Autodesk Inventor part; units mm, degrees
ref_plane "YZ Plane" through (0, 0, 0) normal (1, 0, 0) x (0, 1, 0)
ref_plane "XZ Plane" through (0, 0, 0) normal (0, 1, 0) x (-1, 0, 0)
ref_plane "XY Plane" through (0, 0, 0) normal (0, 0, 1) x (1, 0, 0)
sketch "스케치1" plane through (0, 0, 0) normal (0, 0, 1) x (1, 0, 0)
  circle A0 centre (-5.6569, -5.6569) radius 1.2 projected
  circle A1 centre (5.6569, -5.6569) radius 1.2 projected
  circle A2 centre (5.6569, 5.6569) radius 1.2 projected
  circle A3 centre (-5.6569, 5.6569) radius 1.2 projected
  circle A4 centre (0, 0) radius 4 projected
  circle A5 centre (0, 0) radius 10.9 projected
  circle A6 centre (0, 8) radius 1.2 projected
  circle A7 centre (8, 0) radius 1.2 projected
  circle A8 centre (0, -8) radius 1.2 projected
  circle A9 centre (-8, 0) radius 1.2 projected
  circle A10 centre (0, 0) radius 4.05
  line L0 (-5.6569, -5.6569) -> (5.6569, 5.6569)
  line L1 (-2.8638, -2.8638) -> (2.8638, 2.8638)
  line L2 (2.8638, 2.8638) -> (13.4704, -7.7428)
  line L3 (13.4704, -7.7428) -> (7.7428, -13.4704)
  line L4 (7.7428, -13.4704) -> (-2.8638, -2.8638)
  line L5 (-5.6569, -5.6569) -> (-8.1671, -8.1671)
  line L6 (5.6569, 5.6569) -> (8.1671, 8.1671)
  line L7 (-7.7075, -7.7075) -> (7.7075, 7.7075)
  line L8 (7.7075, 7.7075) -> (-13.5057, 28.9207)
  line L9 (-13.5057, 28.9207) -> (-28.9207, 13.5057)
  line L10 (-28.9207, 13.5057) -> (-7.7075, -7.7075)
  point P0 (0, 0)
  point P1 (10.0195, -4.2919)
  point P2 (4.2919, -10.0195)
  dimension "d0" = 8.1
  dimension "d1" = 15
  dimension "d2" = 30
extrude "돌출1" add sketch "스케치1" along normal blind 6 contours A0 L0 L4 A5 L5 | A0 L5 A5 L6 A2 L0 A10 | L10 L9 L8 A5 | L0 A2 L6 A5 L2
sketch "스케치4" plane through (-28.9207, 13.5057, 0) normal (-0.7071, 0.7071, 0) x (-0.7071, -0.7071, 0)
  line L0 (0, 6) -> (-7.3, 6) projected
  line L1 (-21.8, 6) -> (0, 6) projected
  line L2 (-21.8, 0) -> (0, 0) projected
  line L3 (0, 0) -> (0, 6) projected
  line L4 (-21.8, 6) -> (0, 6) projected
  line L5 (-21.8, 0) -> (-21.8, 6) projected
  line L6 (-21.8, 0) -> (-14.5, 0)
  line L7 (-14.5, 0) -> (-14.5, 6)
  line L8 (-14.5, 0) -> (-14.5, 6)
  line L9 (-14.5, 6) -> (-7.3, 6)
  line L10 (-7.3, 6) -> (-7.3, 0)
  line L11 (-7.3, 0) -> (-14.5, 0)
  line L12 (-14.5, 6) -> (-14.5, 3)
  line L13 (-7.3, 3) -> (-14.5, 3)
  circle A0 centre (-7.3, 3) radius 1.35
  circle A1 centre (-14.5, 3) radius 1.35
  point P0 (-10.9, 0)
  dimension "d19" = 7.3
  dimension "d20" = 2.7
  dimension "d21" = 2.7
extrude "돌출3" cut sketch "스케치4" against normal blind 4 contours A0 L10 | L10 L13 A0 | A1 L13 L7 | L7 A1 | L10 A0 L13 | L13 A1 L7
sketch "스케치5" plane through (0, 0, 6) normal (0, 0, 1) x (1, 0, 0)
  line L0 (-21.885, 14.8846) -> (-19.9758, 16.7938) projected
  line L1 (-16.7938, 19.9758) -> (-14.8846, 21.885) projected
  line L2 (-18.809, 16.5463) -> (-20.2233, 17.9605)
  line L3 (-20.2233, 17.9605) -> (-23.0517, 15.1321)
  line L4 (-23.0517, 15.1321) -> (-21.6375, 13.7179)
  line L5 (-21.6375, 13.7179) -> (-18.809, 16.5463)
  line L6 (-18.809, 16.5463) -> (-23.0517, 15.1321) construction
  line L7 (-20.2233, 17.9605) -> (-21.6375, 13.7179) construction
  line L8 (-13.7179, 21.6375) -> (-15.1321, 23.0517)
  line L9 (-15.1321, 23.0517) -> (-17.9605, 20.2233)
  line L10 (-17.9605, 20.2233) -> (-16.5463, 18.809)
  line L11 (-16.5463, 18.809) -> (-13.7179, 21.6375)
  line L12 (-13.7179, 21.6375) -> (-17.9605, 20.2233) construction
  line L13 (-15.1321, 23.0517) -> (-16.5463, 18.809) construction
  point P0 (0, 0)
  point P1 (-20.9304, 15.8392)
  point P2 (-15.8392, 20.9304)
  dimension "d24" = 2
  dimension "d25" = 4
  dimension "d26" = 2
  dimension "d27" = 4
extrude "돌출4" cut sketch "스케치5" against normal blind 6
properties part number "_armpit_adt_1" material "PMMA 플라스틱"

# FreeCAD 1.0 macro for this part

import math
import FreeCAD as App
import Part
import Sketcher
Q = App.Units.Quantity


def add_polygon(sketch, points):
    """Adds a closed chain of lines whose ends are joined by coincident constraints."""
    first, n = sketch.GeometryCount, len(points)
    for a, b in zip(points, points[1:] + points[:1]):
        sketch.addGeometry(Part.LineSegment(App.Vector(*a, 0), App.Vector(*b, 0)), False)
    for i in range(n):
        sketch.addConstraint(Sketcher.Constraint("Coincident", first + i, 2, first + (i + 1) % n, 1))

doc = App.newDocument("Part")
body = doc.addObject("PartDesign::Body", "Body")

# Sketch on XY plane
sketch1 = body.newObject("Sketcher::SketchObject", "Sketch")
sketch1.AttachmentSupport = (doc.getObject("XY_Plane"), [""])
sketch1.MapMode = "FlatFace"
sketch1.addGeometry(Part.LineSegment(App.Vector(4.3, -10, 0), App.Vector(-2.9, -2.9, 0)), False)
sketch1.addGeometry(Part.ArcOfCircle(Part.Circle(App.Vector(0, 0, 0), App.Vector(0, 0, 1), 4), math.radians(45), math.radians(225)), False)
sketch1.addGeometry(Part.LineSegment(App.Vector(2.9, 2.9, 0), App.Vector(10, -4.3, 0)), False)
sketch1.addGeometry(Part.ArcOfCircle(Part.Circle(App.Vector(0, 0, 0), App.Vector(0, 0, 1), 10.9), math.radians(-23), math.radians(45)), False)
sketch1.addGeometry(Part.LineSegment(App.Vector(7.7, 7.7, 0), App.Vector(-13.5, 28.9, 0)), False)
sketch1.addGeometry(Part.LineSegment(App.Vector(-13.5, 28.9, 0), App.Vector(-28.9, 13.5, 0)), False)
sketch1.addGeometry(Part.LineSegment(App.Vector(-28.9, 13.5, 0), App.Vector(-7.7, -7.7, 0)), False)
sketch1.addGeometry(Part.ArcOfCircle(Part.Circle(App.Vector(0, 0, 0), App.Vector(0, 0, 1), 10.9), math.radians(-135), math.radians(-67)), False)
sketch1.addGeometry(Part.Circle(App.Vector(-5.7, -5.7, 0), App.Vector(0, 0, 1), 1.2), False)
sketch1.addGeometry(Part.Circle(App.Vector(0, -8, 0), App.Vector(0, 0, 1), 1.2), False)
sketch1.addGeometry(Part.Circle(App.Vector(-5.7, 5.7, 0), App.Vector(0, 0, 1), 1.2), False)
sketch1.addGeometry(Part.Circle(App.Vector(5.7, 5.7, 0), App.Vector(0, 0, 1), 1.2), False)
sketch1.addGeometry(Part.Circle(App.Vector(0, 8, 0), App.Vector(0, 0, 1), 1.2), False)
sketch1.addGeometry(Part.Circle(App.Vector(-8, 0, 0), App.Vector(0, 0, 1), 1.2), False)
sketch1.addGeometry(Part.Circle(App.Vector(8, 0, 0), App.Vector(0, 0, 1), 1.2), False)
sketch1.addConstraint(Sketcher.Constraint("Tangent", 0, 2, 1, 2))
sketch1.addConstraint(Sketcher.Constraint("Tangent", 1, 1, 2, 1))
sketch1.addConstraint(Sketcher.Constraint("Coincident", 2, 2, 3, 1))
sketch1.addConstraint(Sketcher.Constraint("Tangent", 3, 2, 4, 1))
sketch1.addConstraint(Sketcher.Constraint("Coincident", 4, 2, 5, 1))
sketch1.addConstraint(Sketcher.Constraint("Coincident", 5, 2, 6, 1))
sketch1.addConstraint(Sketcher.Constraint("Tangent", 6, 2, 7, 1))
sketch1.addConstraint(Sketcher.Constraint("Coincident", 7, 2, 0, 1))
sketch1.addConstraint(Sketcher.Constraint("Coincident", 1, 3, -1, 1))
sketch1.addConstraint(Sketcher.Constraint("Coincident", 3, 3, -1, 1))
sketch1.addConstraint(Sketcher.Constraint("Coincident", 7, 3, -1, 1))
sketch1.addConstraint(Sketcher.Constraint("Equal", 3, 7))
sketch1.addConstraint(Sketcher.Constraint("Equal", 8, 9))
sketch1.addConstraint(Sketcher.Constraint("Equal", 9, 10))
sketch1.addConstraint(Sketcher.Constraint("Equal", 10, 11))
sketch1.addConstraint(Sketcher.Constraint("Equal", 11, 12))
sketch1.addConstraint(Sketcher.Constraint("Equal", 12, 13))
sketch1.addConstraint(Sketcher.Constraint("Equal", 13, 14))
sketch1.addConstraint(Sketcher.Constraint("Symmetric", 8, 3, 11, 3, -1, 1))
sketch1.addConstraint(Sketcher.Constraint("Symmetric", 9, 3, 12, 3, -1, 1))
sketch1.addConstraint(Sketcher.Constraint("Symmetric", 13, 3, 14, 3, -1, 1))
sketch1.addConstraint(Sketcher.Constraint("Symmetric", 10, 3, 11, 3, -2))
sketch1.addConstraint(Sketcher.Constraint("PointOnObject", 9, 3, -2))
sketch1.addConstraint(Sketcher.Constraint("PointOnObject", 13, 3, -1))
sketch1.addConstraint(Sketcher.Constraint("Parallel", 0, 2))
sketch1.addConstraint(Sketcher.Constraint("Parallel", 2, 4))
sketch1.addConstraint(Sketcher.Constraint("Perpendicular", 4, 5))
sketch1.addConstraint(Sketcher.Constraint("Perpendicular", 5, 6))
sketch1.addConstraint(Sketcher.Constraint("Radius", 1, 4.05))
sketch1.addConstraint(Sketcher.Constraint("Distance", 4, 30.0))
sketch1.addConstraint(Sketcher.Constraint("Diameter", 8, 2.4))
sketch1.addConstraint(Sketcher.Constraint("Radius", 3, 10.9))
sketch1.addConstraint(Sketcher.Constraint("Angle", 0, Q("135 deg")))
sketch1.addConstraint(Sketcher.Constraint("DistanceY", 9, 3, -1, 1, 8.0))
sketch1.addConstraint(Sketcher.Constraint("DistanceX", 13, 3, -1, 1, 8.0))
sketch1.addConstraint(Sketcher.Constraint("DistanceX", 8, 3, -1, 1, 5.657))
sketch1.addConstraint(Sketcher.Constraint("DistanceY", 8, 3, -1, 1, 5.657))
pad1 = body.newObject("PartDesign::Pad", "Pad")
pad1.Profile = sketch1
pad1.Length = 6

# Sketch on an angled plane
sketch2 = body.newObject("Sketcher::SketchObject", "Sketch001")
sketch2.Placement = App.Placement(App.Vector(-28.9207, 13.5057, 0), App.Rotation(App.Vector(-0.707106781, -0.707106781, 0), App.Vector(0, 0, 0.999999999), App.Vector(-0.707106781, 0.707106781, 0), "ZXY"))
sketch2.addGeometry(Part.Circle(App.Vector(-7.3, 3, 0), App.Vector(0, 0, 1), 1.4), False)
sketch2.addGeometry(Part.Circle(App.Vector(-14.5, 3, 0), App.Vector(0, 0, 1), 1.4), False)
sketch2.addConstraint(Sketcher.Constraint("Equal", 0, 1))
sketch2.addConstraint(Sketcher.Constraint("Horizontal", 0, 3, 1, 3))
sketch2.addConstraint(Sketcher.Constraint("Diameter", 0, 2.7))
sketch2.addConstraint(Sketcher.Constraint("DistanceX", 0, 3, -1, 1, 7.3))
sketch2.addConstraint(Sketcher.Constraint("DistanceY", -1, 1, 0, 3, 3.0))
sketch2.addConstraint(Sketcher.Constraint("DistanceX", 1, 3, -1, 1, 14.5))
pocket1 = body.newObject("PartDesign::Pocket", "Pocket")
pocket1.Profile = sketch2
pocket1.Length = 4

# Sketch on XY plane
sketch3 = body.newObject("Sketcher::SketchObject", "Sketch002")
sketch3.AttachmentSupport = (doc.getObject("XY_Plane"), [""])
sketch3.MapMode = "FlatFace"
sketch3.AttachmentOffset = App.Placement(App.Vector(0, 0, 6), App.Rotation())
add_polygon(sketch3, [(-21.6, 13.7), (-18.8, 16.5), (-20.2, 18), (-23.1, 15.1)])  # lines 0-3
add_polygon(sketch3, [(-16.5, 18.8), (-13.7, 21.6), (-15.1, 23.1), (-18, 20.2)])  # lines 4-7
sketch3.addConstraint(Sketcher.Constraint("Perpendicular", 0, 1))
sketch3.addConstraint(Sketcher.Constraint("Perpendicular", 1, 2))
sketch3.addConstraint(Sketcher.Constraint("Perpendicular", 2, 3))
sketch3.addConstraint(Sketcher.Constraint("Perpendicular", 3, 4))
sketch3.addConstraint(Sketcher.Constraint("Perpendicular", 4, 5))
sketch3.addConstraint(Sketcher.Constraint("Perpendicular", 5, 6))
sketch3.addConstraint(Sketcher.Constraint("Perpendicular", 6, 7))
sketch3.addConstraint(Sketcher.Constraint("Equal", 2, 4))
sketch3.addConstraint(Sketcher.Constraint("Equal", 3, 5))
sketch3.addConstraint(Sketcher.Constraint("Distance", 0, 4.0))
sketch3.addConstraint(Sketcher.Constraint("Distance", 1, 2.0))
sketch3.addConstraint(Sketcher.Constraint("Angle", 0, Q("44.999 deg")))
sketch3.addConstraint(Sketcher.Constraint("DistanceX", 0, 2, -1, 1, 18.809))
sketch3.addConstraint(Sketcher.Constraint("DistanceY", -1, 1, 2, 2, 15.132))
sketch3.addConstraint(Sketcher.Constraint("DistanceX", 4, 2, -1, 1, 13.718))
sketch3.addConstraint(Sketcher.Constraint("DistanceY", -1, 1, 7, 2, 18.809))
pocket2 = body.newObject("PartDesign::Pocket", "Pocket001")
pocket2.Profile = sketch3
pocket2.Length = 6

doc.recompute()
